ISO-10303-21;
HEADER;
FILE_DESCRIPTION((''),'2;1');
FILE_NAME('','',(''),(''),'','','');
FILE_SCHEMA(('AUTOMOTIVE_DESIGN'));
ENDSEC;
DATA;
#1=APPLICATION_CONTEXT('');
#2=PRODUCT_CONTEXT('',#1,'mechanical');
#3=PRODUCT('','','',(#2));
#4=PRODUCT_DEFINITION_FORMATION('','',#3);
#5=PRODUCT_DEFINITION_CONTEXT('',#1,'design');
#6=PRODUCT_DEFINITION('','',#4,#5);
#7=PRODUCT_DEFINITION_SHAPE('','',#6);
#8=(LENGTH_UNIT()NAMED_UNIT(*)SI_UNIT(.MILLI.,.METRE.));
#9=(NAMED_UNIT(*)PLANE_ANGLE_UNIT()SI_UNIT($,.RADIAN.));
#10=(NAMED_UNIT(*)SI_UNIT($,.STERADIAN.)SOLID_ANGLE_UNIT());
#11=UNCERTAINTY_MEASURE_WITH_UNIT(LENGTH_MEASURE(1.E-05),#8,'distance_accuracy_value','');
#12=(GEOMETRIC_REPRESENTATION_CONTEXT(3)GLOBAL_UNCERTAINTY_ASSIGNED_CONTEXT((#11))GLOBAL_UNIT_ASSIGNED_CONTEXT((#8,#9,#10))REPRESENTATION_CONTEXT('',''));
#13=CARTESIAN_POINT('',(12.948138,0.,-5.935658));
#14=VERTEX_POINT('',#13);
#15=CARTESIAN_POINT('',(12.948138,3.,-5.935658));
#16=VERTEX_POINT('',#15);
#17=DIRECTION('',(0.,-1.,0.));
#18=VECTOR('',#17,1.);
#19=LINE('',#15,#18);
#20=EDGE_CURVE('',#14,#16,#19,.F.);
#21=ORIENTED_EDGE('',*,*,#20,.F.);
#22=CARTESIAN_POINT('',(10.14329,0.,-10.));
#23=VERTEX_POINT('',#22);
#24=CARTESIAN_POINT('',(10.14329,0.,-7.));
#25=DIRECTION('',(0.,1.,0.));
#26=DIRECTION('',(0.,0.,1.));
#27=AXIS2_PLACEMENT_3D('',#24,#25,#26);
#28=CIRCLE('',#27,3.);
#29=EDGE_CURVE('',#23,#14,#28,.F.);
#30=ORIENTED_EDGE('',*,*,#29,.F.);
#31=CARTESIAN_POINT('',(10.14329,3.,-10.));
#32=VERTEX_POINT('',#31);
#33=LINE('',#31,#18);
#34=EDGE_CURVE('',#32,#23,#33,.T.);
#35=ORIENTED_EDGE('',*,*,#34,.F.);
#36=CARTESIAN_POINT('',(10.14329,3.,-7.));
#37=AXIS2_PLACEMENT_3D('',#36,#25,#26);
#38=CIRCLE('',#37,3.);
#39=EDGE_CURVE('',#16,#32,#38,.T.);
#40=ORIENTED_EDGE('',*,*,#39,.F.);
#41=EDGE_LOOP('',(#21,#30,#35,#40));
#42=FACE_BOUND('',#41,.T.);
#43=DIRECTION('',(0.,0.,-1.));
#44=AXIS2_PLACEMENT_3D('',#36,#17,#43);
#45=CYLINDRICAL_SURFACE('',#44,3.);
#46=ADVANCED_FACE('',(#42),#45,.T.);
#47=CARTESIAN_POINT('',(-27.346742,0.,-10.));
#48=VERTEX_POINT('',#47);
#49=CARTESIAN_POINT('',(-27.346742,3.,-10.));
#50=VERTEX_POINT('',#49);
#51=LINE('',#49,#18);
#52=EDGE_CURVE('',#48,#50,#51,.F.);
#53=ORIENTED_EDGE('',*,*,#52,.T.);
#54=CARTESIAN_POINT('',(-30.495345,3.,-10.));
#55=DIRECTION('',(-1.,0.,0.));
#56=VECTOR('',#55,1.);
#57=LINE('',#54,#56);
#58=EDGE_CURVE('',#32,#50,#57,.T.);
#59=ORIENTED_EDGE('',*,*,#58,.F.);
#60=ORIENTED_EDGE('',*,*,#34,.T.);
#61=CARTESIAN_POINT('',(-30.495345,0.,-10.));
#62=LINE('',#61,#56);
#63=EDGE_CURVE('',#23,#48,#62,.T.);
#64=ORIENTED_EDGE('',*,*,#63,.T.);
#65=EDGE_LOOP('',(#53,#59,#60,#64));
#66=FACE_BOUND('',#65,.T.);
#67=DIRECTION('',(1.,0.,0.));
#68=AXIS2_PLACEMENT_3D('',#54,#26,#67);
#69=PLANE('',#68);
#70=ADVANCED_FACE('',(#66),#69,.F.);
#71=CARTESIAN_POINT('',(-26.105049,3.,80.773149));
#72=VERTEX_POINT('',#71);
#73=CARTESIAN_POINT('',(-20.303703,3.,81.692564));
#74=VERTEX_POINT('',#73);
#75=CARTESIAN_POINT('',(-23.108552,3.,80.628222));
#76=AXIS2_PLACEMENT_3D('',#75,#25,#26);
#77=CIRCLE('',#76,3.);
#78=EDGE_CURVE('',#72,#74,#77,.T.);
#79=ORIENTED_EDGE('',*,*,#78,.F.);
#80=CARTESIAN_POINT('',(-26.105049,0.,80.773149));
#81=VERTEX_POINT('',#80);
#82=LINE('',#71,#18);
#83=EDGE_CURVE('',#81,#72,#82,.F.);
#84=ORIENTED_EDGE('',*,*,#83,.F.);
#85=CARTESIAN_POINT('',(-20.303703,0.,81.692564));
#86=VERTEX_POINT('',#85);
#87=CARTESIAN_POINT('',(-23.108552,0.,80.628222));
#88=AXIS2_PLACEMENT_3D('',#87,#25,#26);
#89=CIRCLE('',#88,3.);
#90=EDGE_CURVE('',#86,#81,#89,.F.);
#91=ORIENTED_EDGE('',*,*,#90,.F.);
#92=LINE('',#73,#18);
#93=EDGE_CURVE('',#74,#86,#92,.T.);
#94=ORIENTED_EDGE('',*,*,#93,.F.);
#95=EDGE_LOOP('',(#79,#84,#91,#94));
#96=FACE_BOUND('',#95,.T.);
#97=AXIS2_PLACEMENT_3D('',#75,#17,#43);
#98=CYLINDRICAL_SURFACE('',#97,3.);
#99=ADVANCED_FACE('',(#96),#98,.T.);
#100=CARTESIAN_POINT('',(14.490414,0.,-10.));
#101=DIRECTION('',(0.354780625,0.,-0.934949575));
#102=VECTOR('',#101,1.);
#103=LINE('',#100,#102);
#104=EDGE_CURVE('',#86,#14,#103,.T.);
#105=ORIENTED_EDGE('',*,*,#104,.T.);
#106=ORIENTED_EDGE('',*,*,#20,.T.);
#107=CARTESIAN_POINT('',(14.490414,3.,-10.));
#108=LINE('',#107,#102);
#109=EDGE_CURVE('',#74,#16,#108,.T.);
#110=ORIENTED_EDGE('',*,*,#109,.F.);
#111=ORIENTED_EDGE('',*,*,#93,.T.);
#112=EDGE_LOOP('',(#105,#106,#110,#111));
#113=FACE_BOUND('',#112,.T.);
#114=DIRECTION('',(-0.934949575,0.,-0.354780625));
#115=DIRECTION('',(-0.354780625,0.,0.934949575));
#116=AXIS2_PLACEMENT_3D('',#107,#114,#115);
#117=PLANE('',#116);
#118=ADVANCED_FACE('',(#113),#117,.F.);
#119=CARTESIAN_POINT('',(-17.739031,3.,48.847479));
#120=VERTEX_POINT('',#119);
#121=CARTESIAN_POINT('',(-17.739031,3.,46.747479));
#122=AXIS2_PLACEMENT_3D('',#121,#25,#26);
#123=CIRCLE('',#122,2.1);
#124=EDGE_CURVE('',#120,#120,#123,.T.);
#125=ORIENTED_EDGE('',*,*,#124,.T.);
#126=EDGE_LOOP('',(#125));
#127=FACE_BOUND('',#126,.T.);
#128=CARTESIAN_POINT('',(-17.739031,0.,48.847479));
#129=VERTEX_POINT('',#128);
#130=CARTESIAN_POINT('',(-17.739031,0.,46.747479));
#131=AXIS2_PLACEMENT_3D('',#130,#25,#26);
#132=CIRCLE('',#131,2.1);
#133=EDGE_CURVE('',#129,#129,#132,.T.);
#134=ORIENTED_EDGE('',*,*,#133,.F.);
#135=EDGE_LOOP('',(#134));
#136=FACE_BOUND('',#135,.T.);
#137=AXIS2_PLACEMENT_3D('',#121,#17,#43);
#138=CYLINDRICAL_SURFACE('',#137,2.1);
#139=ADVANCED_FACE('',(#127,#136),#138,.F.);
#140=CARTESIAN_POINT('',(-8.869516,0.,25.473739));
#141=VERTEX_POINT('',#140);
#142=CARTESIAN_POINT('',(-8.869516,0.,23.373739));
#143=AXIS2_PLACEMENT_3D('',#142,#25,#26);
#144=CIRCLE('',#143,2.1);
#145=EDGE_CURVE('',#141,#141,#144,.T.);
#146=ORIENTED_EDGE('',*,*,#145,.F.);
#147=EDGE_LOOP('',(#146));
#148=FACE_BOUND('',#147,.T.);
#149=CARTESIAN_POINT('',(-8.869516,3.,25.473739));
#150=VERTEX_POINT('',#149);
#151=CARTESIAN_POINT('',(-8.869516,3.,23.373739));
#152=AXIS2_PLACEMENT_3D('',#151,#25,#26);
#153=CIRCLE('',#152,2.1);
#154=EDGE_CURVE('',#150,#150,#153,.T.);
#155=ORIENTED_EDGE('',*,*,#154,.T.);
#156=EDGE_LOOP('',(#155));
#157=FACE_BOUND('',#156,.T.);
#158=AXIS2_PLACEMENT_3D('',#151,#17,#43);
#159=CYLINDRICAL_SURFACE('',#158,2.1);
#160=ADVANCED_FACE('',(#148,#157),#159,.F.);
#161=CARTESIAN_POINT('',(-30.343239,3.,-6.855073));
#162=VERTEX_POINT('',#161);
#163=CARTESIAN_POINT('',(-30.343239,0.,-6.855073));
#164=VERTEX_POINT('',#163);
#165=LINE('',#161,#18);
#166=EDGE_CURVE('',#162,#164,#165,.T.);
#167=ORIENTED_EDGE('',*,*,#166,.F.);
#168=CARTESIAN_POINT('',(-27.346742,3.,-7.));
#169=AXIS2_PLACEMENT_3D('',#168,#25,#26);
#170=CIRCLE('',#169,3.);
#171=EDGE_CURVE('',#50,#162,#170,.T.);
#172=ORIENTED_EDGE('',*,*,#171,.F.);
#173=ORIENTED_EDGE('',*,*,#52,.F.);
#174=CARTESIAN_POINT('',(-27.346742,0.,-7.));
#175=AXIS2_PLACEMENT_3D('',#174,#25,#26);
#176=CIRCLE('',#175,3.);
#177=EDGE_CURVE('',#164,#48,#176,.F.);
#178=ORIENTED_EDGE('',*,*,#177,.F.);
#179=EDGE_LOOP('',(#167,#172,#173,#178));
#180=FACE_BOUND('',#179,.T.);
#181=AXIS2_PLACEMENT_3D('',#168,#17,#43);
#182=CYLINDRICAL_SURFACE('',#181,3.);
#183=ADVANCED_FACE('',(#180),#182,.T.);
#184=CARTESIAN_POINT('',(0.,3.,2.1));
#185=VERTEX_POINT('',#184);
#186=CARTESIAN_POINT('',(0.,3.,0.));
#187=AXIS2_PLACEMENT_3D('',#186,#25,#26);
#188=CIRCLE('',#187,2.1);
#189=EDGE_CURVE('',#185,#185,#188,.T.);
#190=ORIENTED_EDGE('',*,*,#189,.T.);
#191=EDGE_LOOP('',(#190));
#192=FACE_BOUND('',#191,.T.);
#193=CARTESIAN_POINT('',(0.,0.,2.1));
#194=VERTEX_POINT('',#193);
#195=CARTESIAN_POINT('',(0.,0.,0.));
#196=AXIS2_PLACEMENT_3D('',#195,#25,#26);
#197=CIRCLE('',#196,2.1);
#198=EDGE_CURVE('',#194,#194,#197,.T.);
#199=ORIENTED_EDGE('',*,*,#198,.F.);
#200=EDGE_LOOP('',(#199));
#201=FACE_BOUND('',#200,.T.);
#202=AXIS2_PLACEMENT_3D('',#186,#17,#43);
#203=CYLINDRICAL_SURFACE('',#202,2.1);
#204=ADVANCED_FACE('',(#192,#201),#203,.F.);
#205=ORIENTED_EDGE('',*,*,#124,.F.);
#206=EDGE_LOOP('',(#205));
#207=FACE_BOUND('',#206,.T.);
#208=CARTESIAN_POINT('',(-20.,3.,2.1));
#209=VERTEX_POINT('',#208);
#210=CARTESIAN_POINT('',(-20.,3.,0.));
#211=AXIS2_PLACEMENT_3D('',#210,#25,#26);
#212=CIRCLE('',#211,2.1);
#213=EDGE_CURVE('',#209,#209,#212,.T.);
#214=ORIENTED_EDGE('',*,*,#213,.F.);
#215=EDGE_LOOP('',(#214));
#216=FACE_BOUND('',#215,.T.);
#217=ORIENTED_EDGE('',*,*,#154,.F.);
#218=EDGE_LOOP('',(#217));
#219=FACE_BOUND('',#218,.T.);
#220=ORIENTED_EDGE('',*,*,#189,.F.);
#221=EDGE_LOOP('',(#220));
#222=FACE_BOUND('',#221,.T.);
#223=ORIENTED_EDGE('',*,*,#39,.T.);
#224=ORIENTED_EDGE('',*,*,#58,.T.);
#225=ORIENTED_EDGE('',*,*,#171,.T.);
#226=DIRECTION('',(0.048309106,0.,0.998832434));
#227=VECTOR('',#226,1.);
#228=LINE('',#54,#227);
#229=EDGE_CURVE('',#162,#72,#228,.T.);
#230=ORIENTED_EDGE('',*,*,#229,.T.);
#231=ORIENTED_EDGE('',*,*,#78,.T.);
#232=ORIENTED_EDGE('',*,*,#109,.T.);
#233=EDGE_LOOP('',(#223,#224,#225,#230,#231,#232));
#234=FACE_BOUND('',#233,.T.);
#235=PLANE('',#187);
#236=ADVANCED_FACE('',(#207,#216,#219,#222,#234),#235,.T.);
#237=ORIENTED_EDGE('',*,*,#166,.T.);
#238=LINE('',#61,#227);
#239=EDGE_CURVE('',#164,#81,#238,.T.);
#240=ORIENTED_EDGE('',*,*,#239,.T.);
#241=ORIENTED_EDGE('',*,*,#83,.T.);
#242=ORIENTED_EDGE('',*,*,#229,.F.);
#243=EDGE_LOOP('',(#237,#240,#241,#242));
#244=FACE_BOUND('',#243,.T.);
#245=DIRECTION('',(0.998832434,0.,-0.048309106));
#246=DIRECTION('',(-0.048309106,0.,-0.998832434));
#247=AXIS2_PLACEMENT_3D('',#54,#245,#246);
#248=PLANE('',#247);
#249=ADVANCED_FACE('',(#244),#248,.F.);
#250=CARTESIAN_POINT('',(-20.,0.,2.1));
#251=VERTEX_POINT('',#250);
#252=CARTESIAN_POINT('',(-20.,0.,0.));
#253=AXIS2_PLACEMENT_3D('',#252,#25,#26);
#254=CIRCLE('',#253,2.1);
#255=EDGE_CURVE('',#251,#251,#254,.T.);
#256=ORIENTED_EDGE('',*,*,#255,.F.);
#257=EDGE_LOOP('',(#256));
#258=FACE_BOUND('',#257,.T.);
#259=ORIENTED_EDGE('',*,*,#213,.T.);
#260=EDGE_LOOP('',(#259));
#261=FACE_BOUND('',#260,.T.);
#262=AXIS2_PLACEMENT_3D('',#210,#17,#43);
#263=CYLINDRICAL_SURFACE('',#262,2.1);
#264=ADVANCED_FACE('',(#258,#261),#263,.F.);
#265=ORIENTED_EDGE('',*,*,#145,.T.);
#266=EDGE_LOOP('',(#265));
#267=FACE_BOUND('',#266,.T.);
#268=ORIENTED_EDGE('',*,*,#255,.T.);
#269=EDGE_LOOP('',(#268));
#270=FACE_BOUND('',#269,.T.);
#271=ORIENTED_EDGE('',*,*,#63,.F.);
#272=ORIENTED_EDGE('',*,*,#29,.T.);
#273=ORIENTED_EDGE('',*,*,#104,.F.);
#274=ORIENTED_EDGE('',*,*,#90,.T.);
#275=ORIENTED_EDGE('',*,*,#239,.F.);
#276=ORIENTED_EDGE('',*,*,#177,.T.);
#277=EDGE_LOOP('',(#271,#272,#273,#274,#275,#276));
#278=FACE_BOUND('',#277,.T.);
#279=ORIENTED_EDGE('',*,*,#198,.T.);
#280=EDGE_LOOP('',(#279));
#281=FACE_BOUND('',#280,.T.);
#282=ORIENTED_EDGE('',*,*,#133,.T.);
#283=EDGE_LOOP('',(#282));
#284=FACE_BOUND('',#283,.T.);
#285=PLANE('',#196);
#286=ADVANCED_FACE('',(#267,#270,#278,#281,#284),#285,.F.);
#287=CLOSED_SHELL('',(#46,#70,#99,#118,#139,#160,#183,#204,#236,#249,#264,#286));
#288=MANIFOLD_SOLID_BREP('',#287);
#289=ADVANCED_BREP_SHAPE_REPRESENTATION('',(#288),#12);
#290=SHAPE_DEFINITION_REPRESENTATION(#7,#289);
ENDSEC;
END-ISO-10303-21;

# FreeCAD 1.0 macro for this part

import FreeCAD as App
import Part
import Sketcher
Q = App.Units.Quantity


def edges_at(feature, points):
    """Names of the edges that pass closest to the given points."""
    edges = feature.Shape.Edges
    near = lambda p: min(range(len(edges)), key=lambda i: edges[i].distToShape(Part.Vertex(*p))[0])
    return sorted({f"Edge{near(p) + 1}" for p in points})


def add_polygon(sketch, points):
    """Adds a closed chain of lines whose ends are joined by coincident constraints."""
    first, n = sketch.GeometryCount, len(points)
    for a, b in zip(points, points[1:] + points[:1]):
        sketch.addGeometry(Part.LineSegment(App.Vector(*a, 0), App.Vector(*b, 0)), False)
    for i in range(n):
        sketch.addConstraint(Sketcher.Constraint("Coincident", first + i, 2, first + (i + 1) % n, 1))

doc = App.newDocument("Part")
params = doc.addObject("Spreadsheet::Sheet", "Params")
for row, (alias, value) in enumerate([
    ("sketch1_diameter", "4.2 mm"),
    ("pad1_length", "3 mm"),
    ("fillet_radius", "3 mm"),
], start=1):
    params.set(f"A{row}", alias)
    params.set(f"B{row}", "=" + value)
    params.setAlias(f"B{row}", alias)

body = doc.addObject("PartDesign::Body", "Body")

sketch1 = body.newObject("Sketcher::SketchObject", "Sketch")
sketch1.AttachmentSupport = (doc.getObject("XZ_Plane"), [""])
sketch1.MapMode = "FlatFace"
add_polygon(sketch1, [(14.490414, -10), (-30.495345, -10), (-25.409775, 95.14854)])
sketch1.addGeometry(Part.Circle(App.Vector(-17.739031, 46.747479, 0), App.Vector(0, 0, 1), 2.1), False)
sketch1.addGeometry(Part.Circle(App.Vector(-8.869516, 23.373739, 0), App.Vector(0, 0, 1), 2.1), False)
sketch1.addGeometry(Part.Circle(App.Vector(0, 0, 0), App.Vector(0, 0, 1), 2.1), False)
sketch1.addGeometry(Part.Circle(App.Vector(-20, 0, 0), App.Vector(0, 0, 1), 2.1), False)
sketch1.addConstraint([
    Sketcher.Constraint("Horizontal", 0),
    Sketcher.Constraint("Coincident", 5, 3, -1, 1),
    Sketcher.Constraint("Equal", 3, 4),
    Sketcher.Constraint("Equal", 4, 5),
    Sketcher.Constraint("Equal", 5, 6),
    Sketcher.Constraint("PointOnObject", 6, 3, -1),
    Sketcher.Constraint("Diameter", 3, 4.2),
    Sketcher.Constraint("DistanceX", 6, 3, -1, 1, 20.0),
    Sketcher.Constraint("DistanceY", 0, 2, -1, 1, 10.0),
    Sketcher.Constraint("Angle", 2, Q("-69.22 deg")),
    Sketcher.Constraint("DistanceX", 0, 2, 0, 1, 44.985759),
    Sketcher.Constraint("DistanceY", 4, 3, 1, 2, 71.774801),
    Sketcher.Constraint("Distance", 1, 105.271452),
    Sketcher.Constraint("DistanceX", 3, 3, -1, 1, 17.739031),
    Sketcher.Constraint("DistanceY", -1, 1, 3, 3, 46.747479),
    Sketcher.Constraint("DistanceX", 0, 2, 4, 3, 21.625829),
    Sketcher.Constraint("DistanceX", 4, 3, -1, 1, 8.869516),
])
sketch1.setExpression("Constraints[9]", "Params.sketch1_diameter")
pad1 = body.newObject("PartDesign::Pad", "Pad")
pad1.Profile = sketch1
pad1.setExpression("Length", "Params.pad1_length")
pad1.Reversed = True
doc.recompute()

fillet = body.newObject("PartDesign::Fillet", "Fillet")
fillet.Base = (pad1, edges_at(pad1, [(-30.495, 1.5, -10), (14.49, 1.5, -10), (-25.41, 1.5, 95.149)]))
fillet.setExpression("Radius", "Params.fillet_radius")

doc.recompute()
